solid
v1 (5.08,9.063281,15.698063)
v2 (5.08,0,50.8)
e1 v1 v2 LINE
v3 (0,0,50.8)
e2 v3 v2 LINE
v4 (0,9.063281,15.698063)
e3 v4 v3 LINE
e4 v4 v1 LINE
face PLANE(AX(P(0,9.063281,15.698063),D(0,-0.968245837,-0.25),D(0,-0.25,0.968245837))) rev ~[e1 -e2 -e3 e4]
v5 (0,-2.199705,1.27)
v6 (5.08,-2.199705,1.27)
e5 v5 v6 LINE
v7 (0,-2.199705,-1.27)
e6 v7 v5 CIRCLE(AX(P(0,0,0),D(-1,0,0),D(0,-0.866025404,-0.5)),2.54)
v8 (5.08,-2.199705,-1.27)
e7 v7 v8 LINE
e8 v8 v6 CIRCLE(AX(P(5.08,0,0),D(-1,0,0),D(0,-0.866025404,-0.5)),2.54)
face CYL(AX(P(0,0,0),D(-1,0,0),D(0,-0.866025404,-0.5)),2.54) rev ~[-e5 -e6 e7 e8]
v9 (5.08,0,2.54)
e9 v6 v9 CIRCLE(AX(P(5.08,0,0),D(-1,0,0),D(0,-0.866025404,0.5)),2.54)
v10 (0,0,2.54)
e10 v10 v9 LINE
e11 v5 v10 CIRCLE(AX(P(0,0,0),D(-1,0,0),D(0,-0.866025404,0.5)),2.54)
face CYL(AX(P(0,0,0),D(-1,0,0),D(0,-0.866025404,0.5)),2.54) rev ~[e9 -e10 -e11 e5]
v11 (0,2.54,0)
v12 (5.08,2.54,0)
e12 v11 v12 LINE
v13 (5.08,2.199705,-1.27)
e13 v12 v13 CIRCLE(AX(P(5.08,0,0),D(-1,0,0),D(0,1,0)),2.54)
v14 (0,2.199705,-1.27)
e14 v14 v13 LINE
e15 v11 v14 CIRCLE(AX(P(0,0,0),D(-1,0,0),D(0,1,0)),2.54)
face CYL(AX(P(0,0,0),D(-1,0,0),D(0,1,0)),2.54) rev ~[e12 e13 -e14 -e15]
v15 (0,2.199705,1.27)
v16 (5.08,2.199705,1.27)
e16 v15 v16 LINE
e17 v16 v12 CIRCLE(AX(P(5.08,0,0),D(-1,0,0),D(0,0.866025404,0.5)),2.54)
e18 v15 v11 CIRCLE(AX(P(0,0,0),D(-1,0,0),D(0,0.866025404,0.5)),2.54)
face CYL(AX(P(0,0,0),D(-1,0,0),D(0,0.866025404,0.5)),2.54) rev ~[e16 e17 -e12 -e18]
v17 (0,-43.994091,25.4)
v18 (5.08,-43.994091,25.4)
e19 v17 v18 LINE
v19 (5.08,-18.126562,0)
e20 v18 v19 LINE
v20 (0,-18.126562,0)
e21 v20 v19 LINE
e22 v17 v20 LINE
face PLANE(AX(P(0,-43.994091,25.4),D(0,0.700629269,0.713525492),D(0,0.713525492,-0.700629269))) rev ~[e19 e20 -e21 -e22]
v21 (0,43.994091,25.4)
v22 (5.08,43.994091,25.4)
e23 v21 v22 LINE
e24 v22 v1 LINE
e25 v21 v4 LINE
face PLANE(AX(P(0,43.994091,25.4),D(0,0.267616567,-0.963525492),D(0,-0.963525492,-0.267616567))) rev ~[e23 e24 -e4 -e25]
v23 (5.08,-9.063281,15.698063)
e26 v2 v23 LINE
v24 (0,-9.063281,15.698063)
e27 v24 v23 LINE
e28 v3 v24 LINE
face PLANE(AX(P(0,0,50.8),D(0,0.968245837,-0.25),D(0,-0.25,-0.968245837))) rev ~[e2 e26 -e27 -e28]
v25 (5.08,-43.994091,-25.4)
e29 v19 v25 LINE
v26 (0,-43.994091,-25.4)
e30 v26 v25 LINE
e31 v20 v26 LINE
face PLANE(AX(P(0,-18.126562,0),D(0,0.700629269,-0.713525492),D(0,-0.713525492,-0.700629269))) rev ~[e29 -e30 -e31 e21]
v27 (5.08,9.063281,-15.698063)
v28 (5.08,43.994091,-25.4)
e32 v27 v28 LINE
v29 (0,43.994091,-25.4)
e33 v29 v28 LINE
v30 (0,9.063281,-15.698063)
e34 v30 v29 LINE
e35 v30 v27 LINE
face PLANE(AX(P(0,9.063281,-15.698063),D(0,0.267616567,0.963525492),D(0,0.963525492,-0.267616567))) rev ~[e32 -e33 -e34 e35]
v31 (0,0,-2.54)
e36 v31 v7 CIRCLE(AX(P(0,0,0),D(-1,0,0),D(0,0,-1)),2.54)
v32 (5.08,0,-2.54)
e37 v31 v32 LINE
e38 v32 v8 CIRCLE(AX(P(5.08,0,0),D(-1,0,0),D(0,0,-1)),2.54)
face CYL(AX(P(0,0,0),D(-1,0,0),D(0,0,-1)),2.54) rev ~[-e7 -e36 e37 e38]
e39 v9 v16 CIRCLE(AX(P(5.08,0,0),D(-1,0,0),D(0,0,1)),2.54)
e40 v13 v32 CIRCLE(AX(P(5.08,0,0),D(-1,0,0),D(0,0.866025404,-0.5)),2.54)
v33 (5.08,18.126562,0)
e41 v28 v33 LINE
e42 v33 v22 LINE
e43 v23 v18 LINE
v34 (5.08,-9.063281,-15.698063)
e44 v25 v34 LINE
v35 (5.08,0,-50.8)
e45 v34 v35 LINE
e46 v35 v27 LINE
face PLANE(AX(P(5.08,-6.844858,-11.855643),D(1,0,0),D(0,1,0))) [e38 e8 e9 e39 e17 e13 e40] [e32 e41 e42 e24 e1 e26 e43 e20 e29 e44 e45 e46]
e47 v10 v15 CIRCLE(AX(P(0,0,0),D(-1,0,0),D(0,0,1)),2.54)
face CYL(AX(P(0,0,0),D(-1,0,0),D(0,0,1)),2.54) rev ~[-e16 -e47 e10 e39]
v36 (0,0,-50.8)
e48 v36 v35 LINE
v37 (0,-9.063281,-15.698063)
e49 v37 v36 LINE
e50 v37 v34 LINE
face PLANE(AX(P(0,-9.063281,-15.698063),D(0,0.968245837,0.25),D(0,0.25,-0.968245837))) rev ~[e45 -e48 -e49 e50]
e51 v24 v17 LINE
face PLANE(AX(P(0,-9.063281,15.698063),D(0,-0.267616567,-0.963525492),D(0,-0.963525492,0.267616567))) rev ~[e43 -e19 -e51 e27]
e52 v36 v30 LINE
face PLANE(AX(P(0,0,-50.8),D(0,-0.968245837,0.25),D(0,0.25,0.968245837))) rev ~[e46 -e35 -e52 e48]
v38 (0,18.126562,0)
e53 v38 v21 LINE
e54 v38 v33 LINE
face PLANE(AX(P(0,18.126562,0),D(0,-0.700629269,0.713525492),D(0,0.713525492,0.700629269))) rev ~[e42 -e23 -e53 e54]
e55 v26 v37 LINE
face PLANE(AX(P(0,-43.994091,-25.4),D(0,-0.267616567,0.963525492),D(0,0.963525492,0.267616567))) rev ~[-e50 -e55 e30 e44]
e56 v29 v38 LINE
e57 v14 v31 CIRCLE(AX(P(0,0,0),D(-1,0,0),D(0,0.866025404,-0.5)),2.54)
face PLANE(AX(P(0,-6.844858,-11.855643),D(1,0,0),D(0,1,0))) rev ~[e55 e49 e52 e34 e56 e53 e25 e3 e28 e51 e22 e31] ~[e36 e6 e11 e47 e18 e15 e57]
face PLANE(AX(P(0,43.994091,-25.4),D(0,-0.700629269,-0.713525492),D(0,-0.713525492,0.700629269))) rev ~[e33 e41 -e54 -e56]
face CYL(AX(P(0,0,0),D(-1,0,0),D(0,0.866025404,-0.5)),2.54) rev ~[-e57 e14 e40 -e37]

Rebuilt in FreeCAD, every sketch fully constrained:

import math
import FreeCAD as App
import Part
import Sketcher

V = App.Vector
Q = App.Units.Quantity


def add_polygon(sketch, points):
    """Adds a closed chain of lines whose ends are joined by coincident constraints."""
    first, n = sketch.GeometryCount, len(points)
    for a, b in zip(points, points[1:] + points[:1]):
        sketch.addGeometry(Part.LineSegment(App.Vector(*a, 0), App.Vector(*b, 0)), False)
    for i in range(n):
        sketch.addConstraint(Sketcher.Constraint("Coincident", first + i, 2, first + (i + 1) % n, 1))

doc = App.newDocument("Part")
body = doc.addObject("PartDesign::Body", "Body")

# Sketch on YZ plane
sketch1 = doc.addObject("Sketcher::SketchObject", "Sketch")
body.addObject(sketch1)
sketch1.AttachmentSupport = (doc.YZ_Plane, [""])
sketch1.MapMode = "FlatFace"
add_polygon(sketch1, [(-9.1, 15.7), (-44, 25.4), (-18.1, 0), (-44, -25.4), (-9.1, -15.7), (0, -50.8), (9.1, -15.7), (44, -25.4), (18.1, 0), (44, 25.4), (9.1, 15.7), (0, 50.8)])  # lines 0-11
sketch1.addGeometry(Part.ArcOfCircle(Part.Circle(V(0, 0, 0), V(0, 0, 1), 2.5), math.radians(-30), math.radians(0)), False)  # 12
sketch1.addGeometry(Part.ArcOfCircle(Part.Circle(V(0, 0, 0), V(0, 0, 1), 2.5), math.radians(-90), math.radians(-30)), False)  # 13
sketch1.addGeometry(Part.ArcOfCircle(Part.Circle(V(0, 0, 0), V(0, 0, 1), 2.5), math.radians(-150), math.radians(-90)), False)  # 14
sketch1.addGeometry(Part.ArcOfCircle(Part.Circle(V(0, 0, 0), V(0, 0, 1), 2.5), math.radians(150), math.radians(210)), False)  # 15
sketch1.addGeometry(Part.ArcOfCircle(Part.Circle(V(0, 0, 0), V(0, 0, 1), 2.5), math.radians(90), math.radians(150)), False)  # 16
sketch1.addGeometry(Part.ArcOfCircle(Part.Circle(V(0, 0, 0), V(0, 0, 1), 2.5), math.radians(30), math.radians(90)), False)  # 17
sketch1.addGeometry(Part.ArcOfCircle(Part.Circle(V(0, 0, 0), V(0, 0, 1), 2.5), math.radians(0), math.radians(30)), False)  # 18
sketch1.addConstraint(Sketcher.Constraint("Tangent", 12, 1, 13, 2))
sketch1.addConstraint(Sketcher.Constraint("Tangent", 13, 1, 14, 2))
sketch1.addConstraint(Sketcher.Constraint("Tangent", 14, 1, 15, 2))
sketch1.addConstraint(Sketcher.Constraint("Tangent", 15, 1, 16, 2))
sketch1.addConstraint(Sketcher.Constraint("Tangent", 16, 1, 17, 2))
sketch1.addConstraint(Sketcher.Constraint("Tangent", 17, 1, 18, 2))
sketch1.addConstraint(Sketcher.Constraint("Tangent", 18, 1, 12, 2))
sketch1.addConstraint(Sketcher.Constraint("Coincident", 12, 3, -1, 1))
sketch1.addConstraint(Sketcher.Constraint("Coincident", 14, 3, -1, 1))
sketch1.addConstraint(Sketcher.Constraint("Coincident", 16, 3, -1, 1))
sketch1.addConstraint(Sketcher.Constraint("Symmetric", 0, 2, 6, 2, -1, 1))
sketch1.addConstraint(Sketcher.Constraint("Symmetric", 1, 2, 7, 2, -1, 1))
sketch1.addConstraint(Sketcher.Constraint("Symmetric", 2, 2, 8, 2, -1, 1))
sketch1.addConstraint(Sketcher.Constraint("Symmetric", 3, 2, 9, 2, -1, 1))
sketch1.addConstraint(Sketcher.Constraint("Symmetric", 4, 2, 10, 2, -1, 1))
sketch1.addConstraint(Sketcher.Constraint("Symmetric", 5, 2, 11, 2, -1, 1))
sketch1.addConstraint(Sketcher.Constraint("Symmetric", 3, 2, 5, 2, -2))
sketch1.addConstraint(Sketcher.Constraint("Symmetric", 2, 2, 6, 2, -2))
sketch1.addConstraint(Sketcher.Constraint("PointOnObject", 1, 2, -1))
sketch1.addConstraint(Sketcher.Constraint("PointOnObject", 4, 2, -2))
sketch1.addConstraint(Sketcher.Constraint("PointOnObject", 13, 1, -2))
sketch1.addConstraint(Sketcher.Constraint("PointOnObject", 16, 1, -2))
sketch1.addConstraint(Sketcher.Constraint("PointOnObject", 18, 1, -1))
sketch1.addConstraint(Sketcher.Constraint("Horizontal", 12, 1, 14, 1))
sketch1.addConstraint(Sketcher.Constraint("Horizontal", 15, 1, 17, 1))
sketch1.addConstraint(Sketcher.Constraint("Vertical", 14, 1, 15, 1))
sketch1.addConstraint(Sketcher.Constraint("Equal", 0, 1))
sketch1.addConstraint(Sketcher.Constraint("Equal", 3, 4))
sketch1.addConstraint(Sketcher.Constraint("Radius", 12, Q("0.1 in")))
sketch1.addConstraint(Sketcher.Constraint("DistanceY", -1, 1, 0, 2, Q("1 in")))
sketch1.addConstraint(Sketcher.Constraint("DistanceY", 4, 2, -1, 1, Q("2 in")))
sketch1.addConstraint(Sketcher.Constraint("DistanceY", 14, 1, 15, 1, Q("0.1 in")))
sketch1.addConstraint(Sketcher.Constraint("DistanceX", 0, 2, -1, 1, 43.994091))
sketch1.addConstraint(Sketcher.Constraint("DistanceX", 3, 2, -1, 1, 9.063281))
pad1 = doc.addObject("PartDesign::Pad", "Pad")
body.addObject(pad1)
pad1.Profile = sketch1
pad1.Length = Q("0.2 in")

doc.recompute()
